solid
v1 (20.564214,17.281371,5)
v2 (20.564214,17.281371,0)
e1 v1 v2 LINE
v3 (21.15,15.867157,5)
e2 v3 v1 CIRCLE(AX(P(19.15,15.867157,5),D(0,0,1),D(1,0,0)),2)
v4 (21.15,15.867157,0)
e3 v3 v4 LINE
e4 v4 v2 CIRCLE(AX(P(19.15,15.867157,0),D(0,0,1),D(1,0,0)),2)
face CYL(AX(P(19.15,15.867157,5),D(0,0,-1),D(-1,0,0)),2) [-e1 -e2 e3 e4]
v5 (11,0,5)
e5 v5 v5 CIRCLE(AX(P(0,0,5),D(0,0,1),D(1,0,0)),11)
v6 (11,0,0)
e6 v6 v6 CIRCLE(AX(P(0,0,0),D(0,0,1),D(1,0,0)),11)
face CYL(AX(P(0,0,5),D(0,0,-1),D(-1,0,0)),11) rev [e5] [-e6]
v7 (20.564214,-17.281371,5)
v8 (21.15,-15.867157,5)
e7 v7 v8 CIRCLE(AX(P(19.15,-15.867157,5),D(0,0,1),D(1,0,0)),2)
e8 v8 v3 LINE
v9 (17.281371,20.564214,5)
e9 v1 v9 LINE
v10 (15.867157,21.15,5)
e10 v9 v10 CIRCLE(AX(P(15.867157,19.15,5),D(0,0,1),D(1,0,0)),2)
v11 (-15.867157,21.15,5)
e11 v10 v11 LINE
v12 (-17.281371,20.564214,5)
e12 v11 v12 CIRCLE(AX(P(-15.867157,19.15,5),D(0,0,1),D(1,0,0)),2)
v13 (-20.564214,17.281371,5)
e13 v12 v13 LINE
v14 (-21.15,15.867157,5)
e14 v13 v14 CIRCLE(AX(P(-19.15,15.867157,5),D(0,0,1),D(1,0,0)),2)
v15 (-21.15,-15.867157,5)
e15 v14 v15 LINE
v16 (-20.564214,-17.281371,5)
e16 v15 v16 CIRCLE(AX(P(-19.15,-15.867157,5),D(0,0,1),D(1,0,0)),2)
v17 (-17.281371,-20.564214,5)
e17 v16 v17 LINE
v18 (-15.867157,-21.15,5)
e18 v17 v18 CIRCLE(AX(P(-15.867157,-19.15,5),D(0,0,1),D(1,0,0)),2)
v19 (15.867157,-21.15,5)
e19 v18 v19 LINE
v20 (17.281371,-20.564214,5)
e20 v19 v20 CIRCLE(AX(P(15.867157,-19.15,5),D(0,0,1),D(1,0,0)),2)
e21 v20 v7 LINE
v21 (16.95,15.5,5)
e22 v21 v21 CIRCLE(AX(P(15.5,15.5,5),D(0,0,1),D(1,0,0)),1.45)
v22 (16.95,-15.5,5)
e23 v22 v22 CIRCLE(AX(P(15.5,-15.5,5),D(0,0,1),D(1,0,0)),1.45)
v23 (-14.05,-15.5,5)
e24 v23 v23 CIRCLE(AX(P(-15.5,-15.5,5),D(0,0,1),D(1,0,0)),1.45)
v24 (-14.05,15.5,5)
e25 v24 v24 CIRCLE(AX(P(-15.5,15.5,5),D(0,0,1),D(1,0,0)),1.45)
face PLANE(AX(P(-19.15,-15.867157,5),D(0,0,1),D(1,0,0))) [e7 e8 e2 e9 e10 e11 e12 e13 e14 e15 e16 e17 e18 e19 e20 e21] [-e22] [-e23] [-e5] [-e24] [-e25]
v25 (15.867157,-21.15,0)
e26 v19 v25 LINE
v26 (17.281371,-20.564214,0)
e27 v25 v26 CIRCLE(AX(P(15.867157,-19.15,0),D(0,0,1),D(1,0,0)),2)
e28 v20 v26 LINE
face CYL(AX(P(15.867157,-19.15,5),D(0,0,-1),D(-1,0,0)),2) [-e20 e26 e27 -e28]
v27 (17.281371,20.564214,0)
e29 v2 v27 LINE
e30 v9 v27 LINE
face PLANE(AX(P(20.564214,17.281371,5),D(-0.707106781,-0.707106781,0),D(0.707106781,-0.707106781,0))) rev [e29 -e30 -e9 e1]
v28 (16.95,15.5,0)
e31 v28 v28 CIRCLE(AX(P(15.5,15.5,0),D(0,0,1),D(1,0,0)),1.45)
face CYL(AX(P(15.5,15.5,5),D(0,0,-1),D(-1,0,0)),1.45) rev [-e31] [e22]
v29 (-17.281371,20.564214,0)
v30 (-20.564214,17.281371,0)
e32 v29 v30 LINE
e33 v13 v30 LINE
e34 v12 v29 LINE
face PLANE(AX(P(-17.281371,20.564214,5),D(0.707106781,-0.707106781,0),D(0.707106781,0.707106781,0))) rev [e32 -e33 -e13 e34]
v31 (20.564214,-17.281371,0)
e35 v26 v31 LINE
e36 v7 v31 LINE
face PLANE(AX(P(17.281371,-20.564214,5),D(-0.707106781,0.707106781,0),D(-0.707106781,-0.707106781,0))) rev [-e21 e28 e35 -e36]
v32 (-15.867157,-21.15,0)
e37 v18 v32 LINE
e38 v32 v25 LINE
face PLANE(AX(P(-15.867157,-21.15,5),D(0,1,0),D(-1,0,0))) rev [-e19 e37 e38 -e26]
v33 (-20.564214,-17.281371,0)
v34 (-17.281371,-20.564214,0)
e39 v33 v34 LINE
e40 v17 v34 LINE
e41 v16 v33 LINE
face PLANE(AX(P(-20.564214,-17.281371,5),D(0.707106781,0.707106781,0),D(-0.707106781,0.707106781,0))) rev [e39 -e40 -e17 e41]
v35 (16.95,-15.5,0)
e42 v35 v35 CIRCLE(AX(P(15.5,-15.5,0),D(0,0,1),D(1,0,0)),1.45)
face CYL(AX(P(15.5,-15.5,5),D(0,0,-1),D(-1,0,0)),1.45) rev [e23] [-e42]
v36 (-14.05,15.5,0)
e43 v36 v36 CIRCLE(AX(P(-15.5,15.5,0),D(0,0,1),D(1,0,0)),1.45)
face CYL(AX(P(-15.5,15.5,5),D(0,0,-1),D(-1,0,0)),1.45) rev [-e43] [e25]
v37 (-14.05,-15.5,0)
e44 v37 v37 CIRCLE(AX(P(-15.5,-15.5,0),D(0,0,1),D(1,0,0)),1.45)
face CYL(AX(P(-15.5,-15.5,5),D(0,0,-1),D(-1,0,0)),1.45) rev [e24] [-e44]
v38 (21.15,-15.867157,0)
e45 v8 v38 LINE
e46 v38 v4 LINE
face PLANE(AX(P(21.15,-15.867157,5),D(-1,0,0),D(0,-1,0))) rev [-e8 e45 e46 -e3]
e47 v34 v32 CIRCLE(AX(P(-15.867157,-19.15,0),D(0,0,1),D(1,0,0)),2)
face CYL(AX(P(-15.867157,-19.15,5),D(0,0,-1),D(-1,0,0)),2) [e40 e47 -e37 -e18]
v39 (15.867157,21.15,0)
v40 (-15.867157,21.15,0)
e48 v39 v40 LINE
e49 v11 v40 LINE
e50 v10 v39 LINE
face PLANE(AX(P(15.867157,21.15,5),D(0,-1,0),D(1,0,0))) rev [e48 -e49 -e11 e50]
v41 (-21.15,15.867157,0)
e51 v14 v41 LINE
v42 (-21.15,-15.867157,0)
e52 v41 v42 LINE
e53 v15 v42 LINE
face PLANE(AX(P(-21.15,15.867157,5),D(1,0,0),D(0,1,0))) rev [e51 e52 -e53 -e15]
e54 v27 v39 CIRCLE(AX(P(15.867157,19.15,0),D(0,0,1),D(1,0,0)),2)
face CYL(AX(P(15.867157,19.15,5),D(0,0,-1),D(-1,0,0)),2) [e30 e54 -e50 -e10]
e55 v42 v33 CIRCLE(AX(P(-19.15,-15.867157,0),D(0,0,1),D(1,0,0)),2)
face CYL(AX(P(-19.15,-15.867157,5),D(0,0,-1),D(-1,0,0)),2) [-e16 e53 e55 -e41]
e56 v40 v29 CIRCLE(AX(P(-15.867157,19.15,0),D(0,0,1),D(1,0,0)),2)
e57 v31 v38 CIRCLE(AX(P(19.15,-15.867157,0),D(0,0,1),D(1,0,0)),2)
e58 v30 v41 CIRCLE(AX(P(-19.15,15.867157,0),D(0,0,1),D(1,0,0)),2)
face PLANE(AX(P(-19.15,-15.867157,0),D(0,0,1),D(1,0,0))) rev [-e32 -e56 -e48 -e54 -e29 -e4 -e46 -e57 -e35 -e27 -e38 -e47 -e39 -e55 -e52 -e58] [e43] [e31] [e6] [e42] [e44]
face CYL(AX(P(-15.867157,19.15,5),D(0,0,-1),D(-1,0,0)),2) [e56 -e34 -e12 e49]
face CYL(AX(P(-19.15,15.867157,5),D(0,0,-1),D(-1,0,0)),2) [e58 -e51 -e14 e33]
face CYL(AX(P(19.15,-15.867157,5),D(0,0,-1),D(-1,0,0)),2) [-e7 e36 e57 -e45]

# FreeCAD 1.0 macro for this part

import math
import FreeCAD as App
import Part
import Sketcher
Q = App.Units.Quantity

doc = App.newDocument("Part")
body = doc.addObject("PartDesign::Body", "Body")

# Sketch on XY plane
sketch1 = doc.addObject("Sketcher::SketchObject", "Sketch")
body.addObject(sketch1)
sketch1.AttachmentSupport = (doc.XY_Plane, [""])
sketch1.MapMode = "FlatFace"
sketch1.addGeometry(Part.LineSegment(App.Vector(-20.6, -17.3, 0), App.Vector(-17.3, -20.6, 0)), False)
sketch1.addGeometry(Part.ArcOfCircle(Part.Circle(App.Vector(-15.9, -19.1, 0), App.Vector(0, 0, 1), 2), math.radians(-135), math.radians(-90)), False)
sketch1.addGeometry(Part.LineSegment(App.Vector(-15.9, -21.1, 0), App.Vector(15.9, -21.1, 0)), False)
sketch1.addGeometry(Part.ArcOfCircle(Part.Circle(App.Vector(15.9, -19.1, 0), App.Vector(0, 0, 1), 2), math.radians(-90), math.radians(-45)), False)
sketch1.addGeometry(Part.LineSegment(App.Vector(17.3, -20.6, 0), App.Vector(20.6, -17.3, 0)), False)
sketch1.addGeometry(Part.ArcOfCircle(Part.Circle(App.Vector(19.1, -15.9, 0), App.Vector(0, 0, 1), 2), math.radians(-45), math.radians(0)), False)
sketch1.addGeometry(Part.LineSegment(App.Vector(21.1, -15.9, 0), App.Vector(21.1, 15.9, 0)), False)
sketch1.addGeometry(Part.ArcOfCircle(Part.Circle(App.Vector(19.1, 15.9, 0), App.Vector(0, 0, 1), 2), math.radians(0), math.radians(45)), False)
sketch1.addGeometry(Part.LineSegment(App.Vector(20.6, 17.3, 0), App.Vector(17.3, 20.6, 0)), False)
sketch1.addGeometry(Part.ArcOfCircle(Part.Circle(App.Vector(15.9, 19.1, 0), App.Vector(0, 0, 1), 2), math.radians(45), math.radians(90)), False)
sketch1.addGeometry(Part.LineSegment(App.Vector(15.9, 21.1, 0), App.Vector(-15.9, 21.1, 0)), False)
sketch1.addGeometry(Part.ArcOfCircle(Part.Circle(App.Vector(-15.9, 19.1, 0), App.Vector(0, 0, 1), 2), math.radians(90), math.radians(135)), False)
sketch1.addGeometry(Part.LineSegment(App.Vector(-17.3, 20.6, 0), App.Vector(-20.6, 17.3, 0)), False)
sketch1.addGeometry(Part.ArcOfCircle(Part.Circle(App.Vector(-19.1, 15.9, 0), App.Vector(0, 0, 1), 2), math.radians(135), math.radians(180)), False)
sketch1.addGeometry(Part.LineSegment(App.Vector(-21.1, 15.9, 0), App.Vector(-21.1, -15.9, 0)), False)
sketch1.addGeometry(Part.ArcOfCircle(Part.Circle(App.Vector(-19.1, -15.9, 0), App.Vector(0, 0, 1), 2), math.radians(-180), math.radians(-135)), False)
sketch1.addGeometry(Part.Circle(App.Vector(-15.5, -15.5, 0), App.Vector(0, 0, 1), 1.4), False)
sketch1.addGeometry(Part.Circle(App.Vector(0, 0, 0), App.Vector(0, 0, 1), 11), False)
sketch1.addGeometry(Part.Circle(App.Vector(15.5, -15.5, 0), App.Vector(0, 0, 1), 1.4), False)
sketch1.addGeometry(Part.Circle(App.Vector(-15.5, 15.5, 0), App.Vector(0, 0, 1), 1.4), False)
sketch1.addGeometry(Part.Circle(App.Vector(15.5, 15.5, 0), App.Vector(0, 0, 1), 1.4), False)
sketch1.addConstraint(Sketcher.Constraint("Tangent", 0, 2, 1, 1))
sketch1.addConstraint(Sketcher.Constraint("Tangent", 1, 2, 2, 1))
sketch1.addConstraint(Sketcher.Constraint("Tangent", 2, 2, 3, 1))
sketch1.addConstraint(Sketcher.Constraint("Tangent", 3, 2, 4, 1))
sketch1.addConstraint(Sketcher.Constraint("Tangent", 4, 2, 5, 1))
sketch1.addConstraint(Sketcher.Constraint("Tangent", 5, 2, 6, 1))
sketch1.addConstraint(Sketcher.Constraint("Tangent", 6, 2, 7, 1))
sketch1.addConstraint(Sketcher.Constraint("Tangent", 7, 2, 8, 1))
sketch1.addConstraint(Sketcher.Constraint("Tangent", 8, 2, 9, 1))
sketch1.addConstraint(Sketcher.Constraint("Tangent", 9, 2, 10, 1))
sketch1.addConstraint(Sketcher.Constraint("Tangent", 10, 2, 11, 1))
sketch1.addConstraint(Sketcher.Constraint("Tangent", 11, 2, 12, 1))
sketch1.addConstraint(Sketcher.Constraint("Tangent", 12, 2, 13, 1))
sketch1.addConstraint(Sketcher.Constraint("Tangent", 13, 2, 14, 1))
sketch1.addConstraint(Sketcher.Constraint("Tangent", 14, 2, 15, 1))
sketch1.addConstraint(Sketcher.Constraint("Tangent", 15, 2, 0, 1))
sketch1.addConstraint(Sketcher.Constraint("Horizontal", 2))
sketch1.addConstraint(Sketcher.Constraint("Vertical", 6))
sketch1.addConstraint(Sketcher.Constraint("Horizontal", 10))
sketch1.addConstraint(Sketcher.Constraint("Vertical", 14))
sketch1.addConstraint(Sketcher.Constraint("Coincident", 17, 3, -1, 1))
sketch1.addConstraint(Sketcher.Constraint("Equal", 1, 3))
sketch1.addConstraint(Sketcher.Constraint("Equal", 3, 5))
sketch1.addConstraint(Sketcher.Constraint("Equal", 5, 7))
sketch1.addConstraint(Sketcher.Constraint("Equal", 7, 9))
sketch1.addConstraint(Sketcher.Constraint("Equal", 9, 11))
sketch1.addConstraint(Sketcher.Constraint("Equal", 11, 13))
sketch1.addConstraint(Sketcher.Constraint("Equal", 13, 15))
sketch1.addConstraint(Sketcher.Constraint("Equal", 16, 18))
sketch1.addConstraint(Sketcher.Constraint("Equal", 18, 19))
sketch1.addConstraint(Sketcher.Constraint("Equal", 19, 20))
sketch1.addConstraint(Sketcher.Constraint("Symmetric", 1, 3, 9, 3, -1, 1))
sketch1.addConstraint(Sketcher.Constraint("Symmetric", 5, 3, 13, 3, -1, 1))
sketch1.addConstraint(Sketcher.Constraint("Symmetric", 18, 3, 19, 3, -1, 1))
sketch1.addConstraint(Sketcher.Constraint("Symmetric", 16, 3, 20, 3, -1, 1))
sketch1.addConstraint(Sketcher.Constraint("Symmetric", 16, 3, 18, 3, -2))
sketch1.addConstraint(Sketcher.Constraint("Symmetric", 0, 2, 3, 2, -2))
sketch1.addConstraint(Sketcher.Constraint("Symmetric", 8, 2, 11, 2, -2))
sketch1.addConstraint(Sketcher.Constraint("Perpendicular", 0, 4))
sketch1.addConstraint(Sketcher.Constraint("Equal", 10, 6))
sketch1.addConstraint(Sketcher.Constraint("Diameter", 17, Q("22 mm")))
sketch1.addConstraint(Sketcher.Constraint("Radius", 1, Q("2 mm")))
sketch1.addConstraint(Sketcher.Constraint("Diameter", 16, Q("2.9 mm")))
sketch1.addConstraint(Sketcher.Constraint("DistanceX", 16, 3, 18, 3, Q("31 mm")))
sketch1.addConstraint(Sketcher.Constraint("DistanceY", 16, 3, 19, 3, Q("31 mm")))
sketch1.addConstraint(Sketcher.Constraint("DistanceY", 3, 3, 9, 3, Q("38.3 mm")))
sketch1.addConstraint(Sketcher.Constraint("Distance", 0, Q("4.642641 mm")))
pad1 = doc.addObject("PartDesign::Pad", "Pad")
body.addObject(pad1)
pad1.Profile = sketch1
pad1.Length = 5

doc.recompute()
